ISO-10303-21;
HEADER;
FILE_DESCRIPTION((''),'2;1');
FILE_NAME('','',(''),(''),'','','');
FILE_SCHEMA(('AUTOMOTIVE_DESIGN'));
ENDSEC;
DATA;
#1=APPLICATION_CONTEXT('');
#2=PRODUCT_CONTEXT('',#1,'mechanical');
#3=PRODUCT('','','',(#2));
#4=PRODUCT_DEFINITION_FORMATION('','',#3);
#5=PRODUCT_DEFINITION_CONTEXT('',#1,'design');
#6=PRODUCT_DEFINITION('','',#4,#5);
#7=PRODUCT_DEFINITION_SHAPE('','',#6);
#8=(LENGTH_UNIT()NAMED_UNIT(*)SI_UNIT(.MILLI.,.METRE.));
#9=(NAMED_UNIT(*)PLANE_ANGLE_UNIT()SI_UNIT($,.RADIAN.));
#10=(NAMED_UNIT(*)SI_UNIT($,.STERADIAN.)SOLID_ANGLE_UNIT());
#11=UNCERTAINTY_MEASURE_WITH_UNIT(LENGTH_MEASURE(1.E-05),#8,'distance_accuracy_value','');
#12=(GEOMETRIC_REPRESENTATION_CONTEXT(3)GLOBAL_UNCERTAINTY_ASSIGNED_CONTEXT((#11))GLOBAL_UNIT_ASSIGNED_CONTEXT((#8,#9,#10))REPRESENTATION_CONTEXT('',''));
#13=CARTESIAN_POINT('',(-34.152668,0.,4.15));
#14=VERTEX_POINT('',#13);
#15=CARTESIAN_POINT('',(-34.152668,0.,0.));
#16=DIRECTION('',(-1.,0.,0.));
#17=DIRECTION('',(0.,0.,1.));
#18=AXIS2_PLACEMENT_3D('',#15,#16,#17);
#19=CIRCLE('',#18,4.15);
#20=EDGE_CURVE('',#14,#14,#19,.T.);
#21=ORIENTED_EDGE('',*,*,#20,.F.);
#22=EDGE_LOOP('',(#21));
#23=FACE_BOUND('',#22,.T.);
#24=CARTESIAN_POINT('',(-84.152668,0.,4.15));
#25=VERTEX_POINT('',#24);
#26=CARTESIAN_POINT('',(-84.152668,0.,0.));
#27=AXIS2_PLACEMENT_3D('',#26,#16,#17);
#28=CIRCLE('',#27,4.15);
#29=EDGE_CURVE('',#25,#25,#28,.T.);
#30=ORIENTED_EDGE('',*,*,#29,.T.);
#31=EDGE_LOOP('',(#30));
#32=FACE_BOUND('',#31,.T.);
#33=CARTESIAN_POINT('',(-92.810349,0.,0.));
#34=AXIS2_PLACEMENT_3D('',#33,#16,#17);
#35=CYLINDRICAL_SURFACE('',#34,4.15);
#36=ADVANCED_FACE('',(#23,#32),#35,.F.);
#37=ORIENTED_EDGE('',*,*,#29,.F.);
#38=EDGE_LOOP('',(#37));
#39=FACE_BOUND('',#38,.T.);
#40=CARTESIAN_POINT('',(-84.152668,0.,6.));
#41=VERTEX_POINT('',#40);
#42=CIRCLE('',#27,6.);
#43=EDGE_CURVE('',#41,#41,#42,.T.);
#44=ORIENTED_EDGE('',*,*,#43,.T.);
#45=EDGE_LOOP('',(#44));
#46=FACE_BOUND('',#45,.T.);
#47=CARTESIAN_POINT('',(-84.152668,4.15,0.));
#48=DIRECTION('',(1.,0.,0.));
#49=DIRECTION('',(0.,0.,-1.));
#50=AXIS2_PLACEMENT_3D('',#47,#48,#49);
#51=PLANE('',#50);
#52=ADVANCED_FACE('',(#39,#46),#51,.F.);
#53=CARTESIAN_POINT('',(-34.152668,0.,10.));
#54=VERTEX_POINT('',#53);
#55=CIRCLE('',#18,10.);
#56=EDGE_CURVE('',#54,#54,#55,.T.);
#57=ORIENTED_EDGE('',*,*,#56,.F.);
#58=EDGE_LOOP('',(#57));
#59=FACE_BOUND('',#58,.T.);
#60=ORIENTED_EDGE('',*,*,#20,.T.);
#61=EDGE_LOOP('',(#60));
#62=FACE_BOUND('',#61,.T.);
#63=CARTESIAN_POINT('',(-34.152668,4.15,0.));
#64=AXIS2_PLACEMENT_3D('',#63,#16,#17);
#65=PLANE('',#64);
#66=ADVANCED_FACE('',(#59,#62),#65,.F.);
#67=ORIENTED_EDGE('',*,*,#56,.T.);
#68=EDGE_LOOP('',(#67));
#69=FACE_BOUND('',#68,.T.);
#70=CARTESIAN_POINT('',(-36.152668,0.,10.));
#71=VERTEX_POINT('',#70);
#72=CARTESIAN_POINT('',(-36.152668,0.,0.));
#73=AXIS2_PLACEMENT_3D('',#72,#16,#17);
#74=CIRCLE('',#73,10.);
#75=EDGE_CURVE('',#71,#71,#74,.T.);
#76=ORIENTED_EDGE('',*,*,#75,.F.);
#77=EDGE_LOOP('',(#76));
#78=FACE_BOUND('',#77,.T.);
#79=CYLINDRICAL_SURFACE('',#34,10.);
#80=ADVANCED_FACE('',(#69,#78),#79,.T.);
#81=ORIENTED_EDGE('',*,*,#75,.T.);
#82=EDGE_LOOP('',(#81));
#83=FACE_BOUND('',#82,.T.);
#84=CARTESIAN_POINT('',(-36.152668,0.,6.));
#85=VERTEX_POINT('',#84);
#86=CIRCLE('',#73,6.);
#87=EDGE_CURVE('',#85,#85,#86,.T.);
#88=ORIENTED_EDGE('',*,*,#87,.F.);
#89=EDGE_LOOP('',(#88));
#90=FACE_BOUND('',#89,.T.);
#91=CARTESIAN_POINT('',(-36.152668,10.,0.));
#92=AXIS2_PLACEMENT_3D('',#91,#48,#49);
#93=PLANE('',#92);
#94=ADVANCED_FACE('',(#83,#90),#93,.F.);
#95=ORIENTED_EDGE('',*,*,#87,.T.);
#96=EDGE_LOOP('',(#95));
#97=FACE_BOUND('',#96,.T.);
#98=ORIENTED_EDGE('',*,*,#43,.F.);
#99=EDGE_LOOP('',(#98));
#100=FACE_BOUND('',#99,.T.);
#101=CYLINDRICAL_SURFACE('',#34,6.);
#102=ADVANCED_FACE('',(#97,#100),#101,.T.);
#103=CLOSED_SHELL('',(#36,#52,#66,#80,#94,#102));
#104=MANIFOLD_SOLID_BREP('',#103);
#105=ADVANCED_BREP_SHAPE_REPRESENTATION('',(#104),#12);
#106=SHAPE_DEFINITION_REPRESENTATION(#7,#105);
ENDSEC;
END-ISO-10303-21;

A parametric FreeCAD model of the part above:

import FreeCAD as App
import Part
import Sketcher

V = App.Vector

doc = App.newDocument("Part")
body = doc.addObject("PartDesign::Body", "Body")

# Sketch on XY plane
sketch1 = body.newObject("Sketcher::SketchObject", "Sketch")
sketch1.AttachmentSupport = (doc.getObject("XY_Plane"), [""])
sketch1.MapMode = "FlatFace"
sketch1.addGeometry([
    Part.LineSegment(V(-84.2, 4.2, 0), V(-34.2, 4.2, 0)),  # 0
    Part.LineSegment(V(-34.2, 4.2, 0), V(-34.2, 10, 0)),  # 1
    Part.LineSegment(V(-34.2, 10, 0), V(-36.2, 10, 0)),  # 2
    Part.LineSegment(V(-36.2, 10, 0), V(-36.2, 6, 0)),  # 3
    Part.LineSegment(V(-36.2, 6, 0), V(-84.2, 6, 0)),  # 4
    Part.LineSegment(V(-84.2, 6, 0), V(-84.2, 4.2, 0)),  # 5
], False)
sketch1.addConstraint([
    Sketcher.Constraint("Coincident", 0, 2, 1, 1),
    Sketcher.Constraint("Coincident", 1, 2, 2, 1),
    Sketcher.Constraint("Coincident", 2, 2, 3, 1),
    Sketcher.Constraint("Coincident", 3, 2, 4, 1),
    Sketcher.Constraint("Coincident", 4, 2, 5, 1),
    Sketcher.Constraint("Coincident", 5, 2, 0, 1),
    Sketcher.Constraint("Horizontal", 0),
    Sketcher.Constraint("Vertical", 1),
    Sketcher.Constraint("Horizontal", 2),
    Sketcher.Constraint("Vertical", 3),
    Sketcher.Constraint("Horizontal", 4),
    Sketcher.Constraint("Vertical", 5),
    Sketcher.Constraint("DistanceX", 0, 1, 0, 2, 50.0),
    Sketcher.Constraint("DistanceX", 2, 2, 2, 1, 2.0),
    Sketcher.Constraint("DistanceY", 3, 2, 3, 1, 4.0),
    Sketcher.Constraint("DistanceY", -1, 1, 1, 2, 10.0),
    Sketcher.Constraint("DistanceY", 1, 1, 1, 2, 5.85),
    Sketcher.Constraint("DistanceX", 0, 2, -1, 1, 34.152668),
])
revolution = body.newObject("PartDesign::Revolution", "Revolution")
revolution.Profile = sketch1
revolution.ReferenceAxis = (sketch1, ["H_Axis"])
revolution.Angle = 360

doc.recompute()
